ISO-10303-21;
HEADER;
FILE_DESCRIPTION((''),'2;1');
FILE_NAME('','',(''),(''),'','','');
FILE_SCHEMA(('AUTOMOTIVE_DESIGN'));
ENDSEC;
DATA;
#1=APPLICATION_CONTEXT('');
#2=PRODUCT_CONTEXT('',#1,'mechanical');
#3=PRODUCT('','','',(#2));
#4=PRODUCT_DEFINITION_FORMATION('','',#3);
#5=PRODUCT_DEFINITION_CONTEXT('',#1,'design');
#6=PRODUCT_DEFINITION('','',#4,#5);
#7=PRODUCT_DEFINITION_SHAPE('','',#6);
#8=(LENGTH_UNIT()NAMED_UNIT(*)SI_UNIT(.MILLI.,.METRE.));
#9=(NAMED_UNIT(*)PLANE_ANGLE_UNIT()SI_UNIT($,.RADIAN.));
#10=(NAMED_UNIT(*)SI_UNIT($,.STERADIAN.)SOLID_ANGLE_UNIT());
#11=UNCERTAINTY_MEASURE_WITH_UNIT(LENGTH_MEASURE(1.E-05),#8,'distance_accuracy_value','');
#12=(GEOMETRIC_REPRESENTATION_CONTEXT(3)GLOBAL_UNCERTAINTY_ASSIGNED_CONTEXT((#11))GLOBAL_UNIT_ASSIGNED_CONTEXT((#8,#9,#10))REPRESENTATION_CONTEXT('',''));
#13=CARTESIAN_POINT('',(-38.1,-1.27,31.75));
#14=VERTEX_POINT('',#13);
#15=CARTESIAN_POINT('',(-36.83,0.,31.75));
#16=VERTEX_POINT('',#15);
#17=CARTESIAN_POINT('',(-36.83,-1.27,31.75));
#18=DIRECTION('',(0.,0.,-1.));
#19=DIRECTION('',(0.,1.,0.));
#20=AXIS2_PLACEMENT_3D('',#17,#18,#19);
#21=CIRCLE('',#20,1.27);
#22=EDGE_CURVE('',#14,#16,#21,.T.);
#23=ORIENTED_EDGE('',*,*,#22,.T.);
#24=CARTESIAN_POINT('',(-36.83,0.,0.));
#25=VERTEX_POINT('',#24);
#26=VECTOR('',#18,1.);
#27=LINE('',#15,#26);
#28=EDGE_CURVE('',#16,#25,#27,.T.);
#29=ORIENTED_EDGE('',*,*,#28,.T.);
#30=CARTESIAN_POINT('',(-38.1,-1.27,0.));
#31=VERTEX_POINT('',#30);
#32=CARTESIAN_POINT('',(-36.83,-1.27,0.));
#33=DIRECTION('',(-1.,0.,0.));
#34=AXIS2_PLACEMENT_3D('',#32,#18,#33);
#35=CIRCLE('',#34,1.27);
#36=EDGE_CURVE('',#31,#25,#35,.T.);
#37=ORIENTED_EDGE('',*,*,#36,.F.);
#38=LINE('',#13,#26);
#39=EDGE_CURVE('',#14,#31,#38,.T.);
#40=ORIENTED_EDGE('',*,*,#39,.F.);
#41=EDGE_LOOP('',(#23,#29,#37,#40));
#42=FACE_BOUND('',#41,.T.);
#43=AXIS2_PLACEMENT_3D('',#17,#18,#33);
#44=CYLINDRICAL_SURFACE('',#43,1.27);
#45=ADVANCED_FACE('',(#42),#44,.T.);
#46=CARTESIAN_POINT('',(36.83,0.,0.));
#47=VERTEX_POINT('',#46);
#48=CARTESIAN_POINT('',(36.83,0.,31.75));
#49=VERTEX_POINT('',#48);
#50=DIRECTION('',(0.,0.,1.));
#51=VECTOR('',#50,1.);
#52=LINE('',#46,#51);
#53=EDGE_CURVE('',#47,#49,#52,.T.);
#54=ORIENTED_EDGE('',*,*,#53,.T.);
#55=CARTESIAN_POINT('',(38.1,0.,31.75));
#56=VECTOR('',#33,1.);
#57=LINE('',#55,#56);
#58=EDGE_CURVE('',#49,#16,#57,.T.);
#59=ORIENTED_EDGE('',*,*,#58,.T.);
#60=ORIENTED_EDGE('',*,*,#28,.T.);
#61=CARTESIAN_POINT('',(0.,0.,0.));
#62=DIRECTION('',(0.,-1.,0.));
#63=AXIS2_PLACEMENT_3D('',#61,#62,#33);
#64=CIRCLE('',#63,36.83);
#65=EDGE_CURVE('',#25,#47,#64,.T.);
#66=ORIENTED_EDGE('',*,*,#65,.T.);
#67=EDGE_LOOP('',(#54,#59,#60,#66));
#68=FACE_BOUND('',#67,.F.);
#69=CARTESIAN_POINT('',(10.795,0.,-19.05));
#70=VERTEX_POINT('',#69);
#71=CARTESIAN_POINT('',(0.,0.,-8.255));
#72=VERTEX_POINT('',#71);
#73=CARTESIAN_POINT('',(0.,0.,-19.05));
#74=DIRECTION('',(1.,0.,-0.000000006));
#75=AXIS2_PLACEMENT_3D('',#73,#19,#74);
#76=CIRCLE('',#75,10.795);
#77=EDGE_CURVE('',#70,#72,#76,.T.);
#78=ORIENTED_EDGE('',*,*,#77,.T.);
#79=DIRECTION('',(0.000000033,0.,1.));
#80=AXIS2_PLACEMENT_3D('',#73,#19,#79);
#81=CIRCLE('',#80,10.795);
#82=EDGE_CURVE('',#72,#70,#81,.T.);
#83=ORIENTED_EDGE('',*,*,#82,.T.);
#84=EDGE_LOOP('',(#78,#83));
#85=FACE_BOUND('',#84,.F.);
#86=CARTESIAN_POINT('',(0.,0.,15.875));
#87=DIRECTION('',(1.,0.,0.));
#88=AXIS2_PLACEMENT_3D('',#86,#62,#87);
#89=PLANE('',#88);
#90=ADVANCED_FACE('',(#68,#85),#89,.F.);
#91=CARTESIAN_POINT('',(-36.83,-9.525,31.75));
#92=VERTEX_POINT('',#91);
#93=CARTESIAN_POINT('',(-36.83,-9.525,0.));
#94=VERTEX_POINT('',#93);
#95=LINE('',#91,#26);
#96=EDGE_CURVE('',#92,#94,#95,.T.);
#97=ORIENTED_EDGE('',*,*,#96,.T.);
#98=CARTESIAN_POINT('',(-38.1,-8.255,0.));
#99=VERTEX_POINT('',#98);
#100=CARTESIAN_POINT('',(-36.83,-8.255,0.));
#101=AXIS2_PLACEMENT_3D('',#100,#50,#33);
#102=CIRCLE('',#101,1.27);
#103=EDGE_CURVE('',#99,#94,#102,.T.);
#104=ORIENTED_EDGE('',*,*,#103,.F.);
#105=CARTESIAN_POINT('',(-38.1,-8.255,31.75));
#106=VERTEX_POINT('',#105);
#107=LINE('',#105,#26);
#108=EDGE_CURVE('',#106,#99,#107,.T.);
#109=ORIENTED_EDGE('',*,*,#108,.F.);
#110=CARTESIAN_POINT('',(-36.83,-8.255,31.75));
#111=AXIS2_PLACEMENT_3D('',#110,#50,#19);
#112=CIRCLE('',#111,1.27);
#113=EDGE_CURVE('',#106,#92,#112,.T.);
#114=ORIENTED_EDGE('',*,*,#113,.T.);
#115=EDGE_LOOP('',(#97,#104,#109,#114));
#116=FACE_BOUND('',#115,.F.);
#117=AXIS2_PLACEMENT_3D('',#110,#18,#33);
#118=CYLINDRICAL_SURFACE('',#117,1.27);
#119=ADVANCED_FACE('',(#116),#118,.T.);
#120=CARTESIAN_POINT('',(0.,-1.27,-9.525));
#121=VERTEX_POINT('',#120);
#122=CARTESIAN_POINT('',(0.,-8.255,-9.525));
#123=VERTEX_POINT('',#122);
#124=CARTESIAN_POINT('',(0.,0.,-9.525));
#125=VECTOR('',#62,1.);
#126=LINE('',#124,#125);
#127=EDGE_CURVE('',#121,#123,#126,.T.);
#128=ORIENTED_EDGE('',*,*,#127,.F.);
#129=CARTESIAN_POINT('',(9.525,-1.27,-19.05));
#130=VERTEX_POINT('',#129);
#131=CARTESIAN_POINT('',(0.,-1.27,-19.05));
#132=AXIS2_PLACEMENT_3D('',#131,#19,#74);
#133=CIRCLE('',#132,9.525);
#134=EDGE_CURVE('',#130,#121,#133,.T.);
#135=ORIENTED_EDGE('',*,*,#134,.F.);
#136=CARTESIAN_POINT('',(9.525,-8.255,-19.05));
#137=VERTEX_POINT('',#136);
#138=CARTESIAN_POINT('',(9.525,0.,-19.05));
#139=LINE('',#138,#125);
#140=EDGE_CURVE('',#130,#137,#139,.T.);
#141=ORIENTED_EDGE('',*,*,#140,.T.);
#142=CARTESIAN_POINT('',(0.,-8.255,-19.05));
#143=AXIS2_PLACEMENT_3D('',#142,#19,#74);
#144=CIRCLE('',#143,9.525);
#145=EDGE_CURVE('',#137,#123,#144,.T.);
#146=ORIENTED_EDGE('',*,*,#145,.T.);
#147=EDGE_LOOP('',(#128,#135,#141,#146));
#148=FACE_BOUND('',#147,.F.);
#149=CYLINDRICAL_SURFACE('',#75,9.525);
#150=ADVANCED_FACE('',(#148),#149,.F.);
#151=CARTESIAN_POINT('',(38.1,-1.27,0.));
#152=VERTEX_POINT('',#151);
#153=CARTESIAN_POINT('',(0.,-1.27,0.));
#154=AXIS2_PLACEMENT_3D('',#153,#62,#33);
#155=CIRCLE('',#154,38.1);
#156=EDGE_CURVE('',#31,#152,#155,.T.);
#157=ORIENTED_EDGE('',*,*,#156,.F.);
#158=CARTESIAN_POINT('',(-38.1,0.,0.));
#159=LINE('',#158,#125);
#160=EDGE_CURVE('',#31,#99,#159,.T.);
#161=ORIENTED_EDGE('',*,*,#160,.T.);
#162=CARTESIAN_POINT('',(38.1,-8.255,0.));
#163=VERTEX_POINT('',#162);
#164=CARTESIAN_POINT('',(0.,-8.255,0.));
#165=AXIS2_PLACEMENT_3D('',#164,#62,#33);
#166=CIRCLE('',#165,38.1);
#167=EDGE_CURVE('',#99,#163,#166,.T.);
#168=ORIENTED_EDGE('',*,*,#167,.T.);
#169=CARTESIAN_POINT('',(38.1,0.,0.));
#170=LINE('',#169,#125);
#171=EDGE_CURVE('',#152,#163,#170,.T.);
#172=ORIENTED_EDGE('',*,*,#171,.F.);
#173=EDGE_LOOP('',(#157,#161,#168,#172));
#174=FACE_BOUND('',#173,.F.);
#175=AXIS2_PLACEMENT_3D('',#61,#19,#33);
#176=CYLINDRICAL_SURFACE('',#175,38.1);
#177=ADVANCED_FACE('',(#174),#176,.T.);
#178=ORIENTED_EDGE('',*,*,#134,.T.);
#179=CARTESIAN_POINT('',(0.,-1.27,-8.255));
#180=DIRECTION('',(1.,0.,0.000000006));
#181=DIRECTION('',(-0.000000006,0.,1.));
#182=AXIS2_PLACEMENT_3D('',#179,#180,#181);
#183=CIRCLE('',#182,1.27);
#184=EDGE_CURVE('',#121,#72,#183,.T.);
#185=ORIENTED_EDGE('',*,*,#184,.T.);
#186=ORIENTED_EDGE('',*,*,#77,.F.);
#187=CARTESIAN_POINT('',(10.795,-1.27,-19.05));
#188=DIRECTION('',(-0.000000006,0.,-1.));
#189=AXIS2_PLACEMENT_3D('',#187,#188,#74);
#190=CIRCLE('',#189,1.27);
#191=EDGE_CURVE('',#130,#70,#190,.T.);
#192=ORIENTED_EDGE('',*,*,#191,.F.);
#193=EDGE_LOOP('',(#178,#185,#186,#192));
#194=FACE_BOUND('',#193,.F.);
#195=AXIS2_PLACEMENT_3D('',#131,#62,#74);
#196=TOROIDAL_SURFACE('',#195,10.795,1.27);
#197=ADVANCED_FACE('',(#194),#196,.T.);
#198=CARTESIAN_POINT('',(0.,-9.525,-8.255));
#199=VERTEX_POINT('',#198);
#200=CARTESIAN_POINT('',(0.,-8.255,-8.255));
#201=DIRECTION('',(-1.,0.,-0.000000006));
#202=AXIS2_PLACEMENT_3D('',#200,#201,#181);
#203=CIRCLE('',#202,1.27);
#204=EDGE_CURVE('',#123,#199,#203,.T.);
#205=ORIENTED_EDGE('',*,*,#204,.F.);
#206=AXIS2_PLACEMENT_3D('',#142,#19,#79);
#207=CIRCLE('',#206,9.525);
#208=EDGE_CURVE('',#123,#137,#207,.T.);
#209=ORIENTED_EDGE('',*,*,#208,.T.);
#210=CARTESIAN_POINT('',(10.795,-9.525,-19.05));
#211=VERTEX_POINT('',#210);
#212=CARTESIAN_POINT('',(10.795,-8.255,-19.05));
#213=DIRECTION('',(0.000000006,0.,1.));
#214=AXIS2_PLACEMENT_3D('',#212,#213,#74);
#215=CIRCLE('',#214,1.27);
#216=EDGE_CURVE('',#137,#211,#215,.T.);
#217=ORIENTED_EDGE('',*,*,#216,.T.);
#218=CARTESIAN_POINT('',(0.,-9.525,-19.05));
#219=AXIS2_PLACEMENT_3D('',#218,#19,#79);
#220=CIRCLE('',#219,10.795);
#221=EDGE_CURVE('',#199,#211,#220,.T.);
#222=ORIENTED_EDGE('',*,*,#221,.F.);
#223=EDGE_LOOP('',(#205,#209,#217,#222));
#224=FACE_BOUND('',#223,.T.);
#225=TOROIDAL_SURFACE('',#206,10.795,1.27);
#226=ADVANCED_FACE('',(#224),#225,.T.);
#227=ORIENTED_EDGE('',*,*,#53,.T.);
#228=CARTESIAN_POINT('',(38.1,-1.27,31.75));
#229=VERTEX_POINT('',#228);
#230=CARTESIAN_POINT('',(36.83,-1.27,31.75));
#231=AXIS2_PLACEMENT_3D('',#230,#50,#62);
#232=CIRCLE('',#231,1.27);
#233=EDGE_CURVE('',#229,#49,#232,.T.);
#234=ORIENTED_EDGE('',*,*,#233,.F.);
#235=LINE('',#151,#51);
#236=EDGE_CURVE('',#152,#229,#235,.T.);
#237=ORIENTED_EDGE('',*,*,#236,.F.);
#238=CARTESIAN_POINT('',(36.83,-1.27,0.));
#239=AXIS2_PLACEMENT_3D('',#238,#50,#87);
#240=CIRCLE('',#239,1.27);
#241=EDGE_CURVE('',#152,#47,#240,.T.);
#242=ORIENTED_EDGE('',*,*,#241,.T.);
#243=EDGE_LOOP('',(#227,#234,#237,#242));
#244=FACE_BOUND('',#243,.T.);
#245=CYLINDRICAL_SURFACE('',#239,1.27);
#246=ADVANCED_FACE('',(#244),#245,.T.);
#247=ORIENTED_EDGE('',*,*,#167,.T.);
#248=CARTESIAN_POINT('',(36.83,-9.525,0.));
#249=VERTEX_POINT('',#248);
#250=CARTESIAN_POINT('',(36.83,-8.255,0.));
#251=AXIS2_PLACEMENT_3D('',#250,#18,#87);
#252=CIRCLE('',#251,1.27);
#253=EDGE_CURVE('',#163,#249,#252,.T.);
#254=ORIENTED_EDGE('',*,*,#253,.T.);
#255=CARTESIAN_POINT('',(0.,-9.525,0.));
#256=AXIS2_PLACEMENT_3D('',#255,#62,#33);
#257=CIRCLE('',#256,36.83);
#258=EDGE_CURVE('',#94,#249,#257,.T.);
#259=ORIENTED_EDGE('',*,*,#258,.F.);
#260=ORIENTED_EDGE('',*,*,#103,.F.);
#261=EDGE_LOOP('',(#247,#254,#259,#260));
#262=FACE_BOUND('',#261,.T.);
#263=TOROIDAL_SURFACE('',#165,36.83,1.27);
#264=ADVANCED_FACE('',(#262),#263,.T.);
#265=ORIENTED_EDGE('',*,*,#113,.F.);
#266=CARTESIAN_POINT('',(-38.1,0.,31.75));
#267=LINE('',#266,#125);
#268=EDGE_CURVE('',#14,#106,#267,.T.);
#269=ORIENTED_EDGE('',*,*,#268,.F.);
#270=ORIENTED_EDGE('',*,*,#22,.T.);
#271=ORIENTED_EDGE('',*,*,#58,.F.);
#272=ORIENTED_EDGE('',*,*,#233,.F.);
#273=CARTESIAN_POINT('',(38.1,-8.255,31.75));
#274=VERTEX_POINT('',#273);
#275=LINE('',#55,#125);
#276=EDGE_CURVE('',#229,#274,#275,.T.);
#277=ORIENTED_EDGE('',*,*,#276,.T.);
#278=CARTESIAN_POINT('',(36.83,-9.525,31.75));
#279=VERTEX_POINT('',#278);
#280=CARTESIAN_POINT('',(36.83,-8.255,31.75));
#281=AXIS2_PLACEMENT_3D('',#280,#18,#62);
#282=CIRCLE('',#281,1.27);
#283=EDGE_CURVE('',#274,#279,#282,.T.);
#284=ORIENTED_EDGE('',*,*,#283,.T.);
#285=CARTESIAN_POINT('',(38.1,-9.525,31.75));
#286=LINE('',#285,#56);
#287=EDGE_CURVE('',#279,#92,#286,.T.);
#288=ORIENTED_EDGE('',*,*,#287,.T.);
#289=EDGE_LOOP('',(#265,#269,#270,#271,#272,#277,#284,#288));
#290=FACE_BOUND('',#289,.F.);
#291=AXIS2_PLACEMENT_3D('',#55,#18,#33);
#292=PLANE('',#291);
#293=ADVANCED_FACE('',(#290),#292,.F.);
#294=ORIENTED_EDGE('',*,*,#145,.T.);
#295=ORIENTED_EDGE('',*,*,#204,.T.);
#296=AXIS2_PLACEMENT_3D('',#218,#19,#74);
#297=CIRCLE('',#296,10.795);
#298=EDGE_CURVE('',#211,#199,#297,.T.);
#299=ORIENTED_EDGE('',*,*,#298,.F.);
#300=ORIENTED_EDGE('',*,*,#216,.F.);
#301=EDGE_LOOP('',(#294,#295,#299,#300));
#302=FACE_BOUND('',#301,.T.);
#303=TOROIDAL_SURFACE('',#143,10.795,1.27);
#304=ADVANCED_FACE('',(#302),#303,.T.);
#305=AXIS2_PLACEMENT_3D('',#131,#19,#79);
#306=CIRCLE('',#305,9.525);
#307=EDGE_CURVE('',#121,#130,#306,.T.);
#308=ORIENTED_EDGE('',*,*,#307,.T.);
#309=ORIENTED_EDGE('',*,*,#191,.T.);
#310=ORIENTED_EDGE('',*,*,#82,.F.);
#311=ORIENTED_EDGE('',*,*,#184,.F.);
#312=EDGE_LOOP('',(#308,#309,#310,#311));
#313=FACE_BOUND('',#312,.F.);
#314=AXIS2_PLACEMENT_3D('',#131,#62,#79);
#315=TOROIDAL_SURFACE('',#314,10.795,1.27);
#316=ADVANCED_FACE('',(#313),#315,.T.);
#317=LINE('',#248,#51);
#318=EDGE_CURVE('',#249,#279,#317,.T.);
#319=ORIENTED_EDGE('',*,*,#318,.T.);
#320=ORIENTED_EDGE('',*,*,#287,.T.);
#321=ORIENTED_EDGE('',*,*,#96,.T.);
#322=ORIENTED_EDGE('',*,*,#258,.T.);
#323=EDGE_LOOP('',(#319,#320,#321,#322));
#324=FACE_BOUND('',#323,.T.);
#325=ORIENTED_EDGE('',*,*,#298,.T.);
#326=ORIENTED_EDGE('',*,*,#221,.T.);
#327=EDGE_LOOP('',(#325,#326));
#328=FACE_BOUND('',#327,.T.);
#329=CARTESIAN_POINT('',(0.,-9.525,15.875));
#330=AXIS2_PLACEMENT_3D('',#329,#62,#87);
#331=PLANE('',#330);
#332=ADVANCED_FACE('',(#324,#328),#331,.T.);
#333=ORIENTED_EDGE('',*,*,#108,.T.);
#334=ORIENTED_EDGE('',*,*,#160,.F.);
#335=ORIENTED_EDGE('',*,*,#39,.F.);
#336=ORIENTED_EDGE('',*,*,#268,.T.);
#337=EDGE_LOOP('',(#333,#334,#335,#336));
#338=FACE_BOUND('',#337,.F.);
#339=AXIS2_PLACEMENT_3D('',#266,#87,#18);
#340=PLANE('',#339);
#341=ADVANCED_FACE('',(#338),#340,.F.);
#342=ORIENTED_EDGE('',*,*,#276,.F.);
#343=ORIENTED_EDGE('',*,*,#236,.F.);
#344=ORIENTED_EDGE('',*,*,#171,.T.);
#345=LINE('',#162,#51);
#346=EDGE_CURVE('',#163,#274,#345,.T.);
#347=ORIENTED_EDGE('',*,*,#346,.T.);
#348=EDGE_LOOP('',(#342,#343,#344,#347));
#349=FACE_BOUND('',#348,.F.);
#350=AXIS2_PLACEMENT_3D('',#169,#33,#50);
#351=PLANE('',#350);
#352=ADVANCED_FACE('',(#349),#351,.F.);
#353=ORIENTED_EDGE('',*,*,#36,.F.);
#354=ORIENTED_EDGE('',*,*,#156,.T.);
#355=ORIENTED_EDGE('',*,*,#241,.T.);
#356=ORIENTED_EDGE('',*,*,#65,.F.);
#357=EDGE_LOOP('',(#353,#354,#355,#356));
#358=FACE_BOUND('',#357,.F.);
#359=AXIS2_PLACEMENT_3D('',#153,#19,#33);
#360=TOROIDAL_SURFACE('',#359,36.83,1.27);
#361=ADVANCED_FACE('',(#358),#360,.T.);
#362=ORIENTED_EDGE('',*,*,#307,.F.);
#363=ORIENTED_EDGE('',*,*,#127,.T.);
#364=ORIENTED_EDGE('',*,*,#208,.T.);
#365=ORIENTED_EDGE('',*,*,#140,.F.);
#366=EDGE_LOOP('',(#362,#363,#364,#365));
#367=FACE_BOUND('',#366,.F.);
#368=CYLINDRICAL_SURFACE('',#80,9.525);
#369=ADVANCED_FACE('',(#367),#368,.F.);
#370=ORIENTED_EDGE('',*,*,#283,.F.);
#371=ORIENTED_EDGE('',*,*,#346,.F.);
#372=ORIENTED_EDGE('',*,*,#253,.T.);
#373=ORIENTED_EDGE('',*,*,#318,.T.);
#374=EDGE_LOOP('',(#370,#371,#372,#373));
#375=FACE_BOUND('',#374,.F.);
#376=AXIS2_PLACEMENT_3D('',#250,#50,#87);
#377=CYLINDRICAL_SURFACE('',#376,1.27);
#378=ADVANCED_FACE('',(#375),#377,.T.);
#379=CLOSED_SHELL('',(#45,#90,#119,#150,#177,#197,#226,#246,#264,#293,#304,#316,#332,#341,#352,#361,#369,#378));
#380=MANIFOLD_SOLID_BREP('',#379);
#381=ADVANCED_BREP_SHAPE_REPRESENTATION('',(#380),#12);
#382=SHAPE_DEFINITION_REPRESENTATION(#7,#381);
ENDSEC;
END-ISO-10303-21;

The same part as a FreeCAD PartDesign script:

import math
import FreeCAD as App
import Part
import Sketcher
Q = App.Units.Quantity


def edges_at(feature, points):
    """Names of the edges that pass closest to the given points."""
    edges = feature.Shape.Edges
    near = lambda p: min(range(len(edges)), key=lambda i: edges[i].distToShape(Part.Vertex(*p))[0])
    return sorted({f"Edge{near(p) + 1}" for p in points})

doc = App.newDocument("Part")
params = doc.addObject("Spreadsheet::Sheet", "Params")
for row, (alias, value) in enumerate([
    ("sketch1_radius", "1.5 in"),
    ("sketch1_radius2", "0.375 in"),
    ("sketch1_height", "1.25 in"),
    ("pad1_length", "0.375 in"),
    ("fillet_radius", "0.05 in"),
], start=1):
    params.set(f"A{row}", alias)
    params.set(f"B{row}", "=" + value)
    params.setAlias(f"B{row}", alias)

body = doc.addObject("PartDesign::Body", "Body")

# Sketch on XZ plane
sketch1 = body.newObject("Sketcher::SketchObject", "Sketch")
sketch1.AttachmentSupport = (doc.getObject("XZ_Plane"), [""])
sketch1.MapMode = "FlatFace"
sketch1.addGeometry(Part.LineSegment(App.Vector(-38, 32, 0), App.Vector(-38, 0, 0)), False)
sketch1.addGeometry(Part.ArcOfCircle(Part.Circle(App.Vector(0, 0, 0), App.Vector(0, 0, 1), 38), math.radians(180), math.radians(360)), False)
sketch1.addGeometry(Part.LineSegment(App.Vector(38, 0, 0), App.Vector(38, 32, 0)), False)
sketch1.addGeometry(Part.LineSegment(App.Vector(38, 32, 0), App.Vector(-38, 32, 0)), False)
sketch1.addGeometry(Part.ArcOfCircle(Part.Circle(App.Vector(0, -19, 0), App.Vector(0, 0, 1), 10), math.radians(0), math.radians(90)), False)
sketch1.addGeometry(Part.ArcOfCircle(Part.Circle(App.Vector(0, -19, 0), App.Vector(0, 0, 1), 10), math.radians(90), math.radians(360)), False)
sketch1.addConstraint(Sketcher.Constraint("Tangent", 0, 2, 1, 1))
sketch1.addConstraint(Sketcher.Constraint("Tangent", 1, 2, 2, 1))
sketch1.addConstraint(Sketcher.Constraint("Coincident", 2, 2, 3, 1))
sketch1.addConstraint(Sketcher.Constraint("Coincident", 3, 2, 0, 1))
sketch1.addConstraint(Sketcher.Constraint("Tangent", 4, 1, 5, 2))
sketch1.addConstraint(Sketcher.Constraint("Coincident", 5, 1, 4, 2))
sketch1.addConstraint(Sketcher.Constraint("Vertical", 0))
sketch1.addConstraint(Sketcher.Constraint("Vertical", 2))
sketch1.addConstraint(Sketcher.Constraint("Horizontal", 3))
sketch1.addConstraint(Sketcher.Constraint("Coincident", 1, 3, -1, 1))
sketch1.addConstraint(Sketcher.Constraint("PointOnObject", 4, 3, -2))
sketch1.addConstraint(Sketcher.Constraint("PointOnObject", 5, 1, -2))
sketch1.addConstraint(Sketcher.Constraint("Horizontal", 5, 3, 4, 1))
sketch1.addConstraint(Sketcher.Constraint("Radius", 1, Q("1.5 in")))
sketch1.addConstraint(Sketcher.Constraint("Radius", 4, Q("0.375 in")))
sketch1.addConstraint(Sketcher.Constraint("DistanceY", 5, 3, 2, 2, Q("2 in")))
sketch1.addConstraint(Sketcher.Constraint("DistanceY", 0, 2, 0, 1, Q("1.25 in")))
sketch1.setExpression("Constraints[13]", "Params.sketch1_radius")
sketch1.setExpression("Constraints[14]", "Params.sketch1_radius2")
sketch1.setExpression("Constraints[16]", "Params.sketch1_height")
pad1 = body.newObject("PartDesign::Pad", "Pad")
pad1.Profile = sketch1
pad1.setExpression("Length", "Params.pad1_length")
doc.recompute()

fillet = body.newObject("PartDesign::Fillet", "Fillet")
fillet.Base = (pad1, edges_at(pad1, [
    (-38.1, -9.525, 15.875),
    (38.1, 0, 15.875),
    (-6.735, -9.525, -25.785),
    (-6.735, 0, -25.785),
]))
fillet.setExpression("Radius", "Params.fillet_radius")

doc.recompute()
